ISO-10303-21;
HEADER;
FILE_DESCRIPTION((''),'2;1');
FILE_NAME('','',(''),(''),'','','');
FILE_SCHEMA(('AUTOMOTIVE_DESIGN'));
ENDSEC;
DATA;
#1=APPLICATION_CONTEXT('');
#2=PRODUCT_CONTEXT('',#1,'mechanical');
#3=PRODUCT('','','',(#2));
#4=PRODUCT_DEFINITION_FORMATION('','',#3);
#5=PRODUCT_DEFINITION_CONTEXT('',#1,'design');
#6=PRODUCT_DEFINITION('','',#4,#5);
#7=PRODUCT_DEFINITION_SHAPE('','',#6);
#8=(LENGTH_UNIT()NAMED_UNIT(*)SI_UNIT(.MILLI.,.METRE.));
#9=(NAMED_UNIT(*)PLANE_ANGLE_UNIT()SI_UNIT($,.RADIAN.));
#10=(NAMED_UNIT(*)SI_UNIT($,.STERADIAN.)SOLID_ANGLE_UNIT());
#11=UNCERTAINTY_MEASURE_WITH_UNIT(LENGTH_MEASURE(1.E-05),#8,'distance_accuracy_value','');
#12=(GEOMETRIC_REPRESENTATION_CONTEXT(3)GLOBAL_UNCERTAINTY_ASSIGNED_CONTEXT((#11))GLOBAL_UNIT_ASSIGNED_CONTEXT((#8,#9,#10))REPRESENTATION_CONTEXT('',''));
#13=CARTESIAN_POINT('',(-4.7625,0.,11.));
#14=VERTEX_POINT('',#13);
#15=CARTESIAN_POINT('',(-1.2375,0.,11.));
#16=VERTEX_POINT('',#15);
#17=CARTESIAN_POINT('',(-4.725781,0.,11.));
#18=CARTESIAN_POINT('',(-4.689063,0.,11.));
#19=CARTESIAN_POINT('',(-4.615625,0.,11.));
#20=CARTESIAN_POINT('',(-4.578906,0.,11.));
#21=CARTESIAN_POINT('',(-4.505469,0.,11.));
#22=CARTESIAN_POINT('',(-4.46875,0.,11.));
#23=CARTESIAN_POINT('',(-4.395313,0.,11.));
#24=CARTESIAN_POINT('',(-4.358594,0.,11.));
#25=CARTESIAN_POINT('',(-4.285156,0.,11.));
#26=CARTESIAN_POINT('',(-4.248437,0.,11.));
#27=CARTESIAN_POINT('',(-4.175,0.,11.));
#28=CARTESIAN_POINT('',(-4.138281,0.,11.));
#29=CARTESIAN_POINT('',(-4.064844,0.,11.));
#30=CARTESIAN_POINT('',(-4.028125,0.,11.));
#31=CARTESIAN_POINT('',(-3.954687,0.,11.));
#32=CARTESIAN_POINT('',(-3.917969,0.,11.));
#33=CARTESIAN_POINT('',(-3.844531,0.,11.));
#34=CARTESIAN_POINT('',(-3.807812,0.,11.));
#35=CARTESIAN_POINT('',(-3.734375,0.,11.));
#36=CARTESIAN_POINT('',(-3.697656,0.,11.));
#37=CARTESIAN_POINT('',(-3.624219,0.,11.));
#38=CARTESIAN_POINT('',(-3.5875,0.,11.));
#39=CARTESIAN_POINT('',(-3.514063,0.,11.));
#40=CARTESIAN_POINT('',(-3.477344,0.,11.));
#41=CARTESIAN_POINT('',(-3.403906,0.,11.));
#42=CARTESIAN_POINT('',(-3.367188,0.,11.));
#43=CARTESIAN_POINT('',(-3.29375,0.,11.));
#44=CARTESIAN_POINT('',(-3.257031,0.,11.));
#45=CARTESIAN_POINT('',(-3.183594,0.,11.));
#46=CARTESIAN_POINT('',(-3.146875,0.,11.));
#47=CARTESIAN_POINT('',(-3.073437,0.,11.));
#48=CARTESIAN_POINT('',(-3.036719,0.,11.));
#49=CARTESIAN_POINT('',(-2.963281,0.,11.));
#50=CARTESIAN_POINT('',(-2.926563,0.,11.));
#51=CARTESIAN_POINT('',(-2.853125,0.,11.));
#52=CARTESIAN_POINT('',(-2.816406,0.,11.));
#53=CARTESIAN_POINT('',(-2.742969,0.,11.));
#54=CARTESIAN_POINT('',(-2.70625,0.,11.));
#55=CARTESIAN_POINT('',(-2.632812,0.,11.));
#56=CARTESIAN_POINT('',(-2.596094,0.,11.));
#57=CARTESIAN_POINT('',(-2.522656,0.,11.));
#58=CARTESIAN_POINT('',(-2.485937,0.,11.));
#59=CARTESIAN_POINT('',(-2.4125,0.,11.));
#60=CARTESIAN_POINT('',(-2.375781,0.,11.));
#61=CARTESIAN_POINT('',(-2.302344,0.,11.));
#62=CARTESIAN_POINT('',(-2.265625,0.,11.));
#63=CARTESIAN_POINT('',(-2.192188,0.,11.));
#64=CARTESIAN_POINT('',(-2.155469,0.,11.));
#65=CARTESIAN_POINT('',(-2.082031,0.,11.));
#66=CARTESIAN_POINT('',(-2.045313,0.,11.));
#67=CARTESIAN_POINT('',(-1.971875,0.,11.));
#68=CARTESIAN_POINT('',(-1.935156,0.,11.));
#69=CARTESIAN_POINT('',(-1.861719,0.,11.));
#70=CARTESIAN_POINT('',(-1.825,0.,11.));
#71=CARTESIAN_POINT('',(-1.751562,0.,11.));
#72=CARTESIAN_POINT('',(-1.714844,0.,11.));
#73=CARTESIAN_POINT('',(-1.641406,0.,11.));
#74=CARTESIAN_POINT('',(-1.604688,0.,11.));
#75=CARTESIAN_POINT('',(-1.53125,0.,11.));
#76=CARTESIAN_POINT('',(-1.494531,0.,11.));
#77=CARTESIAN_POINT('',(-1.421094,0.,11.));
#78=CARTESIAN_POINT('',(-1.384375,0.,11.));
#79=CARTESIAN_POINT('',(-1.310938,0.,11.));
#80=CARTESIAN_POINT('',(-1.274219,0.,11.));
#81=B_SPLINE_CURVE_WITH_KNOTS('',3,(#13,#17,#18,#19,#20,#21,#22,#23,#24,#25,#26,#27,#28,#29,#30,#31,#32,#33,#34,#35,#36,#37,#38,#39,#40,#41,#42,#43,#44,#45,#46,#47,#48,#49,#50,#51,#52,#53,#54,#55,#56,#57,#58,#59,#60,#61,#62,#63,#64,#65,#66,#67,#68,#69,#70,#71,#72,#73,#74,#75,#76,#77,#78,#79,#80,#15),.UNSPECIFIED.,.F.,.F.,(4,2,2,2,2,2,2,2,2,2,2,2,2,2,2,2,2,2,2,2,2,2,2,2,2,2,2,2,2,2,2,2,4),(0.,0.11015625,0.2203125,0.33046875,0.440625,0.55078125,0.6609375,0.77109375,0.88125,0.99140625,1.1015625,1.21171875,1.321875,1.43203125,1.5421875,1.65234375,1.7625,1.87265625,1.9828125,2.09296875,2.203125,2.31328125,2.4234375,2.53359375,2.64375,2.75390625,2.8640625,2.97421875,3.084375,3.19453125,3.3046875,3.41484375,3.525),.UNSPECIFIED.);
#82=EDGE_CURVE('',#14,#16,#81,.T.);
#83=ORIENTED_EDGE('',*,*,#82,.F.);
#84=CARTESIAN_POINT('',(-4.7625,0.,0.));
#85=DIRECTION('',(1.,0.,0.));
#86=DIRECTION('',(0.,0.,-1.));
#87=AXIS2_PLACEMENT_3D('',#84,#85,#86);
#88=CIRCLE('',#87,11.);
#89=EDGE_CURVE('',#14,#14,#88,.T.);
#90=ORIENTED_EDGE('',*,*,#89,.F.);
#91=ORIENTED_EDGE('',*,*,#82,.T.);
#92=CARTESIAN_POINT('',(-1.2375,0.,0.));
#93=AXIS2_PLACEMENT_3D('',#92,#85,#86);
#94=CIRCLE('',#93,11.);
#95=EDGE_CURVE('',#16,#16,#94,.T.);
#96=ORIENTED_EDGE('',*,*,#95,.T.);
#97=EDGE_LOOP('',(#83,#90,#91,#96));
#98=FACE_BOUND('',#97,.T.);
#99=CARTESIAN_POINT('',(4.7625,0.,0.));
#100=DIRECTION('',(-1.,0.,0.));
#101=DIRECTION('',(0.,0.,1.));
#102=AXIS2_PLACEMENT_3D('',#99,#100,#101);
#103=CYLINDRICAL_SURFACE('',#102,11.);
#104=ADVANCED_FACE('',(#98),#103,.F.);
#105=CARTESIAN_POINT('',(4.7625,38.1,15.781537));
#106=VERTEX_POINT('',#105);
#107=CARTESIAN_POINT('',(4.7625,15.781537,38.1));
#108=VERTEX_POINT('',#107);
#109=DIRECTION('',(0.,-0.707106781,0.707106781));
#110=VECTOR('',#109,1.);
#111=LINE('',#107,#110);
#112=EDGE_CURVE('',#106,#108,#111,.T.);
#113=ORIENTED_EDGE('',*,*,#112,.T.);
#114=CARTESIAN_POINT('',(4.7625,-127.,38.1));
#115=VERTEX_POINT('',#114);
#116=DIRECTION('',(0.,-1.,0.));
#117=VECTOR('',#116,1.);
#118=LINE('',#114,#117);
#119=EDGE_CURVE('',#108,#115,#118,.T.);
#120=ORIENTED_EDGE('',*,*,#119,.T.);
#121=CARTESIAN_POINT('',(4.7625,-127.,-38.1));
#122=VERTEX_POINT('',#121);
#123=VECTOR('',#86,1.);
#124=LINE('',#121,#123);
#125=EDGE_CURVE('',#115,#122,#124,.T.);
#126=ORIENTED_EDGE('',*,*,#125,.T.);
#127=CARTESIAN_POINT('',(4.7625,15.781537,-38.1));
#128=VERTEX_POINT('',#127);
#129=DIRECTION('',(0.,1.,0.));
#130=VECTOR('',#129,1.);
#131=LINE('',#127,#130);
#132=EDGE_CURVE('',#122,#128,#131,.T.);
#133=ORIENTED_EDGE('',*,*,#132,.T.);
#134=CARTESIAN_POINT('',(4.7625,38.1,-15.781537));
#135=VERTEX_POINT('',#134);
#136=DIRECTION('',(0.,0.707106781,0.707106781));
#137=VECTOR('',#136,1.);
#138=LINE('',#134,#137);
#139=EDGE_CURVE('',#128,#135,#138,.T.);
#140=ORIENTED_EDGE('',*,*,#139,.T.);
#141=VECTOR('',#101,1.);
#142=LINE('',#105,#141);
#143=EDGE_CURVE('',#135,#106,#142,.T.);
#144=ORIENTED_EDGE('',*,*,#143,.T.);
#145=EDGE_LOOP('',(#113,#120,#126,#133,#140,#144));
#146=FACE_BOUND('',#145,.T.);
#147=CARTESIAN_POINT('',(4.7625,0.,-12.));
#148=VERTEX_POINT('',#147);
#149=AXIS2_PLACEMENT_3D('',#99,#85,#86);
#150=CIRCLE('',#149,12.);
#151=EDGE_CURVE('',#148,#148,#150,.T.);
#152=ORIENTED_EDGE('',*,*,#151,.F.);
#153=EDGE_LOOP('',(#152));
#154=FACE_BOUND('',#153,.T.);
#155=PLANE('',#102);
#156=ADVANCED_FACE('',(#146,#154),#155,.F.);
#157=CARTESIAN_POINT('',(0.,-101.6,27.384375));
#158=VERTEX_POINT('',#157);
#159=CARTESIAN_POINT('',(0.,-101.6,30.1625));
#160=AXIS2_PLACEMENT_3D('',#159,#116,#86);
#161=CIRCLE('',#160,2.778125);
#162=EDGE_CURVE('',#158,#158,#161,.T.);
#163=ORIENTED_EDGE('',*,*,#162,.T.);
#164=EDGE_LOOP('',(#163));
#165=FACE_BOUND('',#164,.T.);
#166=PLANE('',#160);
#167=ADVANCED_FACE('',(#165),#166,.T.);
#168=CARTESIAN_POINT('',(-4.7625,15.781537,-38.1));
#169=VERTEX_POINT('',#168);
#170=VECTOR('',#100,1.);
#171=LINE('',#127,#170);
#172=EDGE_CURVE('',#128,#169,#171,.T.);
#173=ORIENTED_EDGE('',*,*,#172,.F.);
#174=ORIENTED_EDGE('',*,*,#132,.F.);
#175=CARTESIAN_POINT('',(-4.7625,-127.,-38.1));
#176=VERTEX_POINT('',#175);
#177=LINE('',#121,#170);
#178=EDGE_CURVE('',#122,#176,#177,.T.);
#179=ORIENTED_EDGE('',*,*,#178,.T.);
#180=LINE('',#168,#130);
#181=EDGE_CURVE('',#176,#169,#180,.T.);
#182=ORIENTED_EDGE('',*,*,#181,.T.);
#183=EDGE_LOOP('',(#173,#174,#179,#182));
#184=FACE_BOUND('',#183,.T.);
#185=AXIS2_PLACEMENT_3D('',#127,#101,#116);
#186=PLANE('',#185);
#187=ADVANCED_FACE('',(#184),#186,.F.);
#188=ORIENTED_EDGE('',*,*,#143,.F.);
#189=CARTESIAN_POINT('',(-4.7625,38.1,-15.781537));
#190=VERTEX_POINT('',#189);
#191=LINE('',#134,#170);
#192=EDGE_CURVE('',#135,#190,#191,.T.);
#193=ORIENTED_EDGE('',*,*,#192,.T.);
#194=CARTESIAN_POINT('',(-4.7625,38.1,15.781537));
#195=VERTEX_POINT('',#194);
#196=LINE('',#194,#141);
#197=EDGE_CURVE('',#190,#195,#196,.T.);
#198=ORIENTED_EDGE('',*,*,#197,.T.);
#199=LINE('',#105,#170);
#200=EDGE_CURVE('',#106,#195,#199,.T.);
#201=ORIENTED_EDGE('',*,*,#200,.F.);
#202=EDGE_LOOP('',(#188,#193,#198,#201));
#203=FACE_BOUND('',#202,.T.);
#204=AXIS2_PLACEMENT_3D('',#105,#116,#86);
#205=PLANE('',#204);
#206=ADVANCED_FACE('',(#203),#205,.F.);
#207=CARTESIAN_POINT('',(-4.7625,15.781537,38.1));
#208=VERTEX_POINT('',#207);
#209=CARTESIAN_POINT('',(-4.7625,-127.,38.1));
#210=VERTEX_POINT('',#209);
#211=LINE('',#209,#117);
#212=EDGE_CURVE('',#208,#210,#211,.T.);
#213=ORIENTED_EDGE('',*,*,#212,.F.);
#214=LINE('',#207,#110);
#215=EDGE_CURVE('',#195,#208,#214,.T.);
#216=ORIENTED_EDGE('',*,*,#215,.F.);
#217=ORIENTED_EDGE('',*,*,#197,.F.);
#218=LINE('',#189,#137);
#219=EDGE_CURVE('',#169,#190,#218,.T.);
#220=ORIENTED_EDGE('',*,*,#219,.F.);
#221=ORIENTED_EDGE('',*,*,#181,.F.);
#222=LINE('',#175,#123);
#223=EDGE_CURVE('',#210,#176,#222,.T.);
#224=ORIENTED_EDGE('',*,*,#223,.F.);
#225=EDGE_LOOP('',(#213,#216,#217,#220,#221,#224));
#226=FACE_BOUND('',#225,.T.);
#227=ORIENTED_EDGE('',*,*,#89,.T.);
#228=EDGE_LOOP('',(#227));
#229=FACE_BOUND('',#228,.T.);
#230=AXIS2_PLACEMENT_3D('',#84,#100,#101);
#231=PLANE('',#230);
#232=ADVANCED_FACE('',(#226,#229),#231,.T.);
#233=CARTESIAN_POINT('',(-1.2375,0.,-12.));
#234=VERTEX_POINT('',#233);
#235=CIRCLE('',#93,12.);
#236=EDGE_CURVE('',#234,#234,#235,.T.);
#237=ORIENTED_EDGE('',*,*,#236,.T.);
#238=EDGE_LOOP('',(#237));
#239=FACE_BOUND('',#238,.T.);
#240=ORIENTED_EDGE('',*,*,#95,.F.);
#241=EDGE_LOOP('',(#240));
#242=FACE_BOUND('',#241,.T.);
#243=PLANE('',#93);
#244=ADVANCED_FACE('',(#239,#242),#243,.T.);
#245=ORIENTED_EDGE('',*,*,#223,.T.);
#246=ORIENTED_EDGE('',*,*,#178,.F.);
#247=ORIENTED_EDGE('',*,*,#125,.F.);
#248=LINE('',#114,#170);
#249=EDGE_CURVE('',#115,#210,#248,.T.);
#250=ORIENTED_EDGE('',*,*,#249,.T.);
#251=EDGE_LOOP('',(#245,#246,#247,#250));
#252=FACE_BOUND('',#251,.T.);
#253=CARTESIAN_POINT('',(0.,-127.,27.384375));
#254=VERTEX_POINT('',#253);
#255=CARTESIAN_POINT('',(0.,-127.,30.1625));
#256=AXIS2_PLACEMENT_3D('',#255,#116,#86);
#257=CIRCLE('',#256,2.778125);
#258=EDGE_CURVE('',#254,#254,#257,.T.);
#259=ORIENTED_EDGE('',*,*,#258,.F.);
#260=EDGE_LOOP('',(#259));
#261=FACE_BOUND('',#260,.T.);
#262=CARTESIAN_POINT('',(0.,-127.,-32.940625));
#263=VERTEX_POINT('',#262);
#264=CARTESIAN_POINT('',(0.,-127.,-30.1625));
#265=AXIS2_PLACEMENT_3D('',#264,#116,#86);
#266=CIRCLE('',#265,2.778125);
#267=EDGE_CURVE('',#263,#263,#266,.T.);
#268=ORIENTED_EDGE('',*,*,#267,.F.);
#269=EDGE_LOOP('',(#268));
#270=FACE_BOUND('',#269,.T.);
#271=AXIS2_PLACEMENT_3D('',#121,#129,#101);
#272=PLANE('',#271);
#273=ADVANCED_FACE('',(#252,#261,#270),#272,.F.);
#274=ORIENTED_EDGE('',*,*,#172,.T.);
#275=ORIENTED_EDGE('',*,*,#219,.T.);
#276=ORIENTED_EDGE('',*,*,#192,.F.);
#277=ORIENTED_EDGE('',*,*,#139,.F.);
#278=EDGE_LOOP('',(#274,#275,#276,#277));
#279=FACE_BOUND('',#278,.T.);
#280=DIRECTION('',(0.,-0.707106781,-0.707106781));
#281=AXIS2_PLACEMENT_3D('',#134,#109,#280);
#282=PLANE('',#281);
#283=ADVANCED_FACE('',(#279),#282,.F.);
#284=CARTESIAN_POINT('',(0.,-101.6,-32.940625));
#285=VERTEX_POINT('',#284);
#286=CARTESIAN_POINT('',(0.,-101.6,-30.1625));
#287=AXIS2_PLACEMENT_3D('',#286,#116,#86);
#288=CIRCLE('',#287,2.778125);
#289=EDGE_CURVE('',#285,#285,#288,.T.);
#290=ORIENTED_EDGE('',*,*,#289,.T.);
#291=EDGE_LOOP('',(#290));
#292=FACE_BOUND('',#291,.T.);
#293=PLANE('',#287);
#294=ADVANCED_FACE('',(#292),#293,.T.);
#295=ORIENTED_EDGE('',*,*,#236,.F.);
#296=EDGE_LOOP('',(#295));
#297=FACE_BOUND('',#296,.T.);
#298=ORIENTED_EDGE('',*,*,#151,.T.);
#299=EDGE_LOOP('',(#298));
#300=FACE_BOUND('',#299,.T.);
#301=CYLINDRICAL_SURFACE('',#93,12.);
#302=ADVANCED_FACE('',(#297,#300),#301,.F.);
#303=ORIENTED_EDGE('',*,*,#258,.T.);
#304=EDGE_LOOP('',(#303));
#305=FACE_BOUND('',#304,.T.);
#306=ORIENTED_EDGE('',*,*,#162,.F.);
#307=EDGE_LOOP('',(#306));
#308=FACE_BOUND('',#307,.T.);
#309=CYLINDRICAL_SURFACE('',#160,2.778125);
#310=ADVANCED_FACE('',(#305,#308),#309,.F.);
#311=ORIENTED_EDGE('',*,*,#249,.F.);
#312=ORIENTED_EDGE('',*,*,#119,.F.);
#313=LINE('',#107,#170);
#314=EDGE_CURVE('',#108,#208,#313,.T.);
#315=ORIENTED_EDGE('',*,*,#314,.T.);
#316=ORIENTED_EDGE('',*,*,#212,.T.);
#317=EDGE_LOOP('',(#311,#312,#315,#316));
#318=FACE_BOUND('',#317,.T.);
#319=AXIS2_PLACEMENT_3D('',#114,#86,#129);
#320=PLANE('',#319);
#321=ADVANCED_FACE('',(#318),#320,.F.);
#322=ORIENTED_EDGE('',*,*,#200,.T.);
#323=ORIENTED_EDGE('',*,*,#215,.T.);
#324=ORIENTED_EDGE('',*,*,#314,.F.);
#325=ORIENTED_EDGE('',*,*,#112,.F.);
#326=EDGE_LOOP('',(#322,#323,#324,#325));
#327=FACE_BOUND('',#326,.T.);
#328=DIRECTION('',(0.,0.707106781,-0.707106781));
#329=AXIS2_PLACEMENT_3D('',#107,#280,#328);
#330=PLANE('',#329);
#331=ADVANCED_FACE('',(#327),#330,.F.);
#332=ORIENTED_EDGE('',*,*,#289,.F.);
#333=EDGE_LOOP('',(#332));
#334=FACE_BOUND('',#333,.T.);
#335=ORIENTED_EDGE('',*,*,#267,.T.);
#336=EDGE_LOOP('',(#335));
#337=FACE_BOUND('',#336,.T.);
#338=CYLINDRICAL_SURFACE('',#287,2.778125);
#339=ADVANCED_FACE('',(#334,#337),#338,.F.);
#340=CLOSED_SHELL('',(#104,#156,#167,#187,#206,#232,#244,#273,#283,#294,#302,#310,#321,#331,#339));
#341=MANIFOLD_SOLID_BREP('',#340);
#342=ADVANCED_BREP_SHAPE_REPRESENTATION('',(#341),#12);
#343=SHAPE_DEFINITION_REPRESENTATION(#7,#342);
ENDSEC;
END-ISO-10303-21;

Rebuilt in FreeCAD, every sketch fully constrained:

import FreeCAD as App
import Part
import Sketcher
from FreeCAD import Vector
Q = App.Units.Quantity


def add_polygon(sketch, points):
    """Adds a closed chain of lines whose ends are joined by coincident constraints."""
    first, n = sketch.GeometryCount, len(points)
    for a, b in zip(points, points[1:] + points[:1]):
        sketch.addGeometry(Part.LineSegment(App.Vector(*a, 0), App.Vector(*b, 0)), False)
    for i in range(n):
        sketch.addConstraint(Sketcher.Constraint("Coincident", first + i, 2, first + (i + 1) % n, 1))

doc = App.newDocument("Part")
body = doc.addObject("PartDesign::Body", "Body")

# Sketch on YZ plane
sketch1 = body.newObject("Sketcher::SketchObject", "Sketch")
sketch1.AttachmentSupport = (doc.getObject("YZ_Plane"), [""])
sketch1.MapMode = "FlatFace"
add_polygon(sketch1, [(16, 38), (-127, 38), (-127, -38), (16, -38), (38, -16), (38, 16)])  # lines 0-5
sketch1.addGeometry(Part.Circle(Vector(0, 0, 0), Vector(0, 0, 1), 11), False)  # 6
sketch1.addConstraint([
    Sketcher.Constraint("Horizontal", 0),
    Sketcher.Constraint("Vertical", 1),
    Sketcher.Constraint("Horizontal", 2),
    Sketcher.Constraint("Vertical", 4),
    Sketcher.Constraint("Coincident", 6, 3, -1, 1),
    Sketcher.Constraint("Symmetric", 2, 2, 5, 2, -1),
    Sketcher.Constraint("Perpendicular", 3, 5),
    Sketcher.Constraint("Equal", 3, 5),
    Sketcher.Constraint("DistanceY", 1, 2, 1, 1, Q("3 in")),
    Sketcher.Constraint("DistanceX", 0, 2, -1, 1, Q("5 in")),
    Sketcher.Constraint("DistanceX", -1, 1, 3, 2, Q("1.5 in")),
    Sketcher.Constraint("Diameter", 6, 22.0),
    Sketcher.Constraint("DistanceX", 0, 2, 0, 1, 142.781537),
])
pad1 = body.newObject("PartDesign::Pad", "Pad")
pad1.Profile = sketch1
pad1.Length = Q("0.375 in")
pad1.Midplane = True

# Sketch on YZ plane
sketch2 = body.newObject("Sketcher::SketchObject", "Sketch001")
sketch2.AttachmentSupport = (doc.getObject("YZ_Plane"), [""])
sketch2.MapMode = "FlatFace"
sketch2.AttachmentOffset = App.Placement(Vector(0, 0, 0.1875 * 25.4), App.Rotation())
sketch2.addGeometry(Part.Circle(Vector(0, 0, 0), Vector(0, 0, 1), 12), False)
sketch2.addConstraint([
    Sketcher.Constraint("Coincident", 0, 3, -1, 1),
    Sketcher.Constraint("Diameter", 0, 24.0),
])
pocket1 = body.newObject("PartDesign::Pocket", "Pocket")
pocket1.Profile = sketch2
pocket1.Length = 6

# Sketch on XZ plane
sketch3 = body.newObject("Sketcher::SketchObject", "Sketch002")
sketch3.AttachmentSupport = (doc.getObject("XZ_Plane"), [""])
sketch3.MapMode = "FlatFace"
sketch3.AttachmentOffset = App.Placement(Vector(0, 0, 5 * 25.4), App.Rotation())
sketch3.addGeometry([
    Part.Circle(Vector(0, 30.2, 0), Vector(0, 0, 1), 2.8),
    Part.Circle(Vector(0, -30.2, 0), Vector(0, 0, 1), 2.8),
], False)
sketch3.addConstraint([
    Sketcher.Constraint("Equal", 0, 1),
    Sketcher.Constraint("Symmetric", 0, 3, 1, 3, -1, 1),
    Sketcher.Constraint("PointOnObject", 0, 3, -2),
    Sketcher.Constraint("Diameter", 0, Q("0.21875 in")),
    Sketcher.Constraint("DistanceY", -1, 1, 0, 3, Q("1.1875 in")),
])
pocket2 = body.newObject("PartDesign::Pocket", "Pocket001")
pocket2.Profile = sketch3
pocket2.Length = Q("1 in")

doc.recompute()
